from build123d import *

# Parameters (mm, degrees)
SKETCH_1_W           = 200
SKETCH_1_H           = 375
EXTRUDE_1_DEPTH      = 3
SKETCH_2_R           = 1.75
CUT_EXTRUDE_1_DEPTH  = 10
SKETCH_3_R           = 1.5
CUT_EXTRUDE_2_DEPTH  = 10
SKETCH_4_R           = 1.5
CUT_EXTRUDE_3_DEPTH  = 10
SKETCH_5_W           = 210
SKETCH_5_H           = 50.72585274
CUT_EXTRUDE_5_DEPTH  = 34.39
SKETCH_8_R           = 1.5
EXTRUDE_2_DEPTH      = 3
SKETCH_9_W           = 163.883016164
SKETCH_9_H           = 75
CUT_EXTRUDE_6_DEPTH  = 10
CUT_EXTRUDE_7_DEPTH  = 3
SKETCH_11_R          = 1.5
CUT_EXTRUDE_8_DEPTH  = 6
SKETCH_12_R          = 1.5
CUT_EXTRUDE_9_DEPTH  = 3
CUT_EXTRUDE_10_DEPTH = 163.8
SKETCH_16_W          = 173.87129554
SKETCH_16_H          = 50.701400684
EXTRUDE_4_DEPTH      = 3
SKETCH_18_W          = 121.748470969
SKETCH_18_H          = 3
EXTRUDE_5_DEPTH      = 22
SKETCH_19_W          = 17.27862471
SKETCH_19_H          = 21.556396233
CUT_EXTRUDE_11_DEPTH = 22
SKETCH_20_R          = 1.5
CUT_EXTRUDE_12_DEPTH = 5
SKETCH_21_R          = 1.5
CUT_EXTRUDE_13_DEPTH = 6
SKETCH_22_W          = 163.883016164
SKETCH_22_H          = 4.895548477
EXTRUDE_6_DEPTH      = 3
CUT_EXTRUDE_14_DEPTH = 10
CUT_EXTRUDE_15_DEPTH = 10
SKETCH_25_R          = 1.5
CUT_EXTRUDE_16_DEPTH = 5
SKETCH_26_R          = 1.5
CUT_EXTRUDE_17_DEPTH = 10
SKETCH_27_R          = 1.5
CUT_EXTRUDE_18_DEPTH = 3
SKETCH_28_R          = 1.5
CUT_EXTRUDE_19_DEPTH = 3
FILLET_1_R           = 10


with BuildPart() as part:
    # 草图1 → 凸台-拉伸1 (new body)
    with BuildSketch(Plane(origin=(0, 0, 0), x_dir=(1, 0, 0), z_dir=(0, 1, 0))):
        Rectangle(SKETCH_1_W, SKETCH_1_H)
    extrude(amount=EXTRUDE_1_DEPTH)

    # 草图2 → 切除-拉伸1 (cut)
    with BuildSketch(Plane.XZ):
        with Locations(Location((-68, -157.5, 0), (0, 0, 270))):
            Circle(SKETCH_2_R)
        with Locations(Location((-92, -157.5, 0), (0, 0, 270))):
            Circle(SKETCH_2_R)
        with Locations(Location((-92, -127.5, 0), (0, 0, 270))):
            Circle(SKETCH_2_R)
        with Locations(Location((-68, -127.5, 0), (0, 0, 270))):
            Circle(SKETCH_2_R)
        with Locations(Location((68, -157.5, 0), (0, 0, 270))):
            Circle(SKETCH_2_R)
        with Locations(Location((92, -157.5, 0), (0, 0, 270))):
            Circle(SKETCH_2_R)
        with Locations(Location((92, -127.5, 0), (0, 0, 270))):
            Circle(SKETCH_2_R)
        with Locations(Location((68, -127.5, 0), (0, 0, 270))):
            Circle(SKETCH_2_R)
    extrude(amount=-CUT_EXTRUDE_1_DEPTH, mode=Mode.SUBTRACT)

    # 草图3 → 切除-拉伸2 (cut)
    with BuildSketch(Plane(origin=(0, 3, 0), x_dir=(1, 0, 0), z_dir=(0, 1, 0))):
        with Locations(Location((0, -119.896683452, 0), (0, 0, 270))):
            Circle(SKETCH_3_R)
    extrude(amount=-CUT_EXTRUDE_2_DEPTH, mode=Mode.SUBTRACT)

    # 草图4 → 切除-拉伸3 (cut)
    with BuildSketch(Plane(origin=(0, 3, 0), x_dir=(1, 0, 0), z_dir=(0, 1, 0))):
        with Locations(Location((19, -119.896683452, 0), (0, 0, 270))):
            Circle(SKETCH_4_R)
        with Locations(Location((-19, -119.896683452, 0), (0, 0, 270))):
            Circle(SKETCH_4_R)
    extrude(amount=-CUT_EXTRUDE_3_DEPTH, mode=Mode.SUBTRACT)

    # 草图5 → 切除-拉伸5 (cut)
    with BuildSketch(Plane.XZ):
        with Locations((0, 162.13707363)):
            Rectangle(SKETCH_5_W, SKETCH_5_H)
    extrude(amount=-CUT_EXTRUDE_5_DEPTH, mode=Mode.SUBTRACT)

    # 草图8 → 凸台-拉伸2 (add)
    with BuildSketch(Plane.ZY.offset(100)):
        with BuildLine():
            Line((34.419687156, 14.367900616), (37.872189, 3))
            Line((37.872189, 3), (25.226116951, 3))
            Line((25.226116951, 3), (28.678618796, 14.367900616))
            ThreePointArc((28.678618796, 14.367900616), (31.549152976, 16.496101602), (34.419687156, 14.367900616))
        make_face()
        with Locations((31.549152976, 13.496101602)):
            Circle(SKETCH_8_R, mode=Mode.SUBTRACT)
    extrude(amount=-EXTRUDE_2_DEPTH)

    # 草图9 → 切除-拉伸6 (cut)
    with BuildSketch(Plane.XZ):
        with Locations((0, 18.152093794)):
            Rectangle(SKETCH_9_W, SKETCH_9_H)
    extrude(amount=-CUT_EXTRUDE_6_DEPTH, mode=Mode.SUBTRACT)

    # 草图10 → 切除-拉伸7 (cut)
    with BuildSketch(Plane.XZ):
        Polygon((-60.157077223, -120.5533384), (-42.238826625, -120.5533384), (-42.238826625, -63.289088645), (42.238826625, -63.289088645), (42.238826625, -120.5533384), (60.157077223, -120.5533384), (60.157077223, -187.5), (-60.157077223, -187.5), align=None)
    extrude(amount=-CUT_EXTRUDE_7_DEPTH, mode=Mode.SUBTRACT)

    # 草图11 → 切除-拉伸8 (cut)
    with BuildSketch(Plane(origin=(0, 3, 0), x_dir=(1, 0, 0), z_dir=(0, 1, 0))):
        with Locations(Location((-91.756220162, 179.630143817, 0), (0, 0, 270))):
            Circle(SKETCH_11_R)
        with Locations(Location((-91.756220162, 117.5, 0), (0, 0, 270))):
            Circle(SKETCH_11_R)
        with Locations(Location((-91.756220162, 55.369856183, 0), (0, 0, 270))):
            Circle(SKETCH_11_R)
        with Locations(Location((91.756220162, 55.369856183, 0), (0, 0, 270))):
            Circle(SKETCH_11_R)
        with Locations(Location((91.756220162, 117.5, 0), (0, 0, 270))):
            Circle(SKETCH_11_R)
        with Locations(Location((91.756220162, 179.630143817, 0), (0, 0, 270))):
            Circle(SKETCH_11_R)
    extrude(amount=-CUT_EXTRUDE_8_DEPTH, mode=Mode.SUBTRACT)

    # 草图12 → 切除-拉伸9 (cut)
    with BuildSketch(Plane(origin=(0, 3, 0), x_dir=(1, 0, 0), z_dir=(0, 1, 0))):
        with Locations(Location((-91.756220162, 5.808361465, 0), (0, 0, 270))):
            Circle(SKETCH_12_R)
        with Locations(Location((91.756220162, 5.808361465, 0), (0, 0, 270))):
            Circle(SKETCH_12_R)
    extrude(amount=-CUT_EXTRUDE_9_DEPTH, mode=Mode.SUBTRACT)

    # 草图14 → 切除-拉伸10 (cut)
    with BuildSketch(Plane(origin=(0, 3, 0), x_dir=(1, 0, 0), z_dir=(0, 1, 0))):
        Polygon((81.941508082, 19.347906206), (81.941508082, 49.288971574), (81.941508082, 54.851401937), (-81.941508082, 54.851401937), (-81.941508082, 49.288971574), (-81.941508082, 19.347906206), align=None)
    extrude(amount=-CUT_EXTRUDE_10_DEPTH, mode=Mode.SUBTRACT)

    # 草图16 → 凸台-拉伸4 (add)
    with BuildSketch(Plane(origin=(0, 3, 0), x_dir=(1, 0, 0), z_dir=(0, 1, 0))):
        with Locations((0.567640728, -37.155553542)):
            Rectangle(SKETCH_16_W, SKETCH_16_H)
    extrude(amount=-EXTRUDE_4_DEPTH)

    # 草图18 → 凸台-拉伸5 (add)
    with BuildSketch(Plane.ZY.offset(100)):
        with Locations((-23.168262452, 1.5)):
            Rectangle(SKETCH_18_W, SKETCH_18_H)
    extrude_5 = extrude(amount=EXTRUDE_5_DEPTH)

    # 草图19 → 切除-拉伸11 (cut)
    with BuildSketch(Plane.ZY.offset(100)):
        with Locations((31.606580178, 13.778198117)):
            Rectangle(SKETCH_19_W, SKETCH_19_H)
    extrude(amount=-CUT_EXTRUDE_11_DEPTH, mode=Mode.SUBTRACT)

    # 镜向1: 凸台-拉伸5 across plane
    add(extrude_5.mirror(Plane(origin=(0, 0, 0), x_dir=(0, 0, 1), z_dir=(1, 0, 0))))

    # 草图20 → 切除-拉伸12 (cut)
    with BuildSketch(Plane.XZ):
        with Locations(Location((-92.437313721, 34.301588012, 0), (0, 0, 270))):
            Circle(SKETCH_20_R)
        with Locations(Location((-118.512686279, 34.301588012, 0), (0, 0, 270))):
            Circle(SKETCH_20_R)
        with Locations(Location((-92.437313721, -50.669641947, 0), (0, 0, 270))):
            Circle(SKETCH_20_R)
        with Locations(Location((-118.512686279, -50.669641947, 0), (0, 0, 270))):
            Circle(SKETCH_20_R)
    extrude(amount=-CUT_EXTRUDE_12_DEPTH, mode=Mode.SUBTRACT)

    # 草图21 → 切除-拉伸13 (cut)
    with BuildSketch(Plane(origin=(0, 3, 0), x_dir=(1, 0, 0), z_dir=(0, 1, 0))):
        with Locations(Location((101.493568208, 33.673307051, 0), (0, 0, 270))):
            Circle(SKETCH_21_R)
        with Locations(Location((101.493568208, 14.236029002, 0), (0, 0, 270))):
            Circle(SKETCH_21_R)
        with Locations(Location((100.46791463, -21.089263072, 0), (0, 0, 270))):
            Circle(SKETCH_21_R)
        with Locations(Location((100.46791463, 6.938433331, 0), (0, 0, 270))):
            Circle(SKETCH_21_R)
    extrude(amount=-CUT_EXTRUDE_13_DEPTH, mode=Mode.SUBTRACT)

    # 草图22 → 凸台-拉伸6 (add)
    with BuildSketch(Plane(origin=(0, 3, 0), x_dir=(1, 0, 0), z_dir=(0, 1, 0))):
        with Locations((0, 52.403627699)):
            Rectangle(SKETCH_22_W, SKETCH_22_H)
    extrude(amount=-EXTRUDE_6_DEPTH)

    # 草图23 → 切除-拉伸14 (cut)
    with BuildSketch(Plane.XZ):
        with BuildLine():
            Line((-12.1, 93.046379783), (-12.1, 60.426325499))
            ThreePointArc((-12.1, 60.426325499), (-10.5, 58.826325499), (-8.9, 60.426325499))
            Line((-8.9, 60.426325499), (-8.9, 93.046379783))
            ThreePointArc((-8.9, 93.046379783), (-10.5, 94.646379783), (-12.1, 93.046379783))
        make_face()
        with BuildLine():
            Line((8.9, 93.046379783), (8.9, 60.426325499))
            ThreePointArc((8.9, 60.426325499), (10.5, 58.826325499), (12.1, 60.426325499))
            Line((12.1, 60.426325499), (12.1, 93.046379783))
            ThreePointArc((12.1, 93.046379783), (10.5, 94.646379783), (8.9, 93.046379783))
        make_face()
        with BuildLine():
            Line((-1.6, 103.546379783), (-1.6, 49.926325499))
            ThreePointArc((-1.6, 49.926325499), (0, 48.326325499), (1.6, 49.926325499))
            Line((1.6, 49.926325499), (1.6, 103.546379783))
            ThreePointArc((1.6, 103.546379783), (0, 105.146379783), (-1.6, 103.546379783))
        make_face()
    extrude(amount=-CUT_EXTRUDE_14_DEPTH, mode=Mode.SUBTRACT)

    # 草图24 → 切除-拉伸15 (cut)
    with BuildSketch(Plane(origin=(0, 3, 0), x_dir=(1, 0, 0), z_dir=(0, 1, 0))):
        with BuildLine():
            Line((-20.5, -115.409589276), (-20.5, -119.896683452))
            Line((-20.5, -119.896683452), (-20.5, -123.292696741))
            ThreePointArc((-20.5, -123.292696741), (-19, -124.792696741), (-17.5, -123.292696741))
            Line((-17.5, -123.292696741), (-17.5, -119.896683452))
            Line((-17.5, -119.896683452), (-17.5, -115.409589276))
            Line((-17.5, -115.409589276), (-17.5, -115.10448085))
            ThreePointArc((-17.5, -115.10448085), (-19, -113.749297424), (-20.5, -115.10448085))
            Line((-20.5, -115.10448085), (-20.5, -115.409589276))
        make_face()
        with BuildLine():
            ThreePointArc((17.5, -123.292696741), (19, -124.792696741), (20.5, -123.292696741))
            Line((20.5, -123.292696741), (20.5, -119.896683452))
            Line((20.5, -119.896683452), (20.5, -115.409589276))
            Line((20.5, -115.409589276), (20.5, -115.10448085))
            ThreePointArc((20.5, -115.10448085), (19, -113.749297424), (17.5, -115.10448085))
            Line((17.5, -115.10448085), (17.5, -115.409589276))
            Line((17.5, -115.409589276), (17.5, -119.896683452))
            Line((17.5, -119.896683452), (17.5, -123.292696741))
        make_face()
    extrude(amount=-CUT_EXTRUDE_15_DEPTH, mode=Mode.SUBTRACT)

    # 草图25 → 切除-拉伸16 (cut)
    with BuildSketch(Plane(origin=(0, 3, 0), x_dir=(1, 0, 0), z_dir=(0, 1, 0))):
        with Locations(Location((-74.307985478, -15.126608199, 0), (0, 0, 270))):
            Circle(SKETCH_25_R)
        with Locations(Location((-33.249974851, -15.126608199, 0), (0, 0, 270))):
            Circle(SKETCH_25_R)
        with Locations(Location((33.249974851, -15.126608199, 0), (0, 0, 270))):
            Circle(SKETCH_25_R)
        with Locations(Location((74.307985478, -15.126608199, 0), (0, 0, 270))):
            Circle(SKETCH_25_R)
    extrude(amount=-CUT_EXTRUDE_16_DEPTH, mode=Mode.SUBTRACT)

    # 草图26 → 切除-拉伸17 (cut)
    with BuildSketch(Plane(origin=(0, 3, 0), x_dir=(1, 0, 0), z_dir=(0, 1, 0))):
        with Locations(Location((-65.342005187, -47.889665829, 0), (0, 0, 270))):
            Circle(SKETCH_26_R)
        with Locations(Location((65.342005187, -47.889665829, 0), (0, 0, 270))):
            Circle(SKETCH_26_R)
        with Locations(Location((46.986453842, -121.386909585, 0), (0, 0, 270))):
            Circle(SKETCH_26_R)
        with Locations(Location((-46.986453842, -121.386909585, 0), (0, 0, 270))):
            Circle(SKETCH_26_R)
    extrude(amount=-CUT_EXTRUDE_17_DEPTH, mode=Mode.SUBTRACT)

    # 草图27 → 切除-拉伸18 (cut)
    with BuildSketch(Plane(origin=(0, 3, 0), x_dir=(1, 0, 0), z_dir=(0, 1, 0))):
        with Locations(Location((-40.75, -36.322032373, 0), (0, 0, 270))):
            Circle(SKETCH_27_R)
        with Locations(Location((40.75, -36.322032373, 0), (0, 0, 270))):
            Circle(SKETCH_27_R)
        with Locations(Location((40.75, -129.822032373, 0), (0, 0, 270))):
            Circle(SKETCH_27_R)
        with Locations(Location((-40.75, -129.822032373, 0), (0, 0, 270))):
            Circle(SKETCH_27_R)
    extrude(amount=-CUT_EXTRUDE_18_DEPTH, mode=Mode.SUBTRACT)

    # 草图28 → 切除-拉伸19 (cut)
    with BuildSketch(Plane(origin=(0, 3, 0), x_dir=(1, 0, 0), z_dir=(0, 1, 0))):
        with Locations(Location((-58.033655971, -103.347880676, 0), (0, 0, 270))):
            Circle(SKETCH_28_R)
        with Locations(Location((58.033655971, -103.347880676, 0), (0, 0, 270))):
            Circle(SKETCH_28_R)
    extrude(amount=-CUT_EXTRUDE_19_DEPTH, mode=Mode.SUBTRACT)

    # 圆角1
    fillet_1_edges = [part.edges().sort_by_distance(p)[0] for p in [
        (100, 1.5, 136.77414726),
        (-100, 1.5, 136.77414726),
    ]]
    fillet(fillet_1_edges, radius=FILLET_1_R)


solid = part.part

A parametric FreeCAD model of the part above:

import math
import FreeCAD as App
import Part
import Sketcher

V = App.Vector
Q = App.Units.Quantity


def edges_at(feature, points):
    """Names of the edges that pass closest to the given points."""
    edges = feature.Shape.Edges
    near = lambda p: min(range(len(edges)), key=lambda i: edges[i].distToShape(Part.Vertex(*p))[0])
    return sorted({f"Edge{near(p) + 1}" for p in points})


def add_polygon(sketch, points):
    """Adds a closed chain of lines whose ends are joined by coincident constraints."""
    first, n = sketch.GeometryCount, len(points)
    for a, b in zip(points, points[1:] + points[:1]):
        sketch.addGeometry(Part.LineSegment(App.Vector(*a, 0), App.Vector(*b, 0)), False)
    for i in range(n):
        sketch.addConstraint(Sketcher.Constraint("Coincident", first + i, 2, first + (i + 1) % n, 1))

doc = App.newDocument("Part")
body = doc.addObject("PartDesign::Body", "Body")

# Sketch on XZ plane
sketch1 = body.newObject("Sketcher::SketchObject", "Sketch")
sketch1.AttachmentSupport = (doc.getObject("XZ_Plane"), [""])
sketch1.MapMode = "FlatFace"
add_polygon(sketch1, [(-100, -188), (-100, 188), (100, 188), (100, -188)])  # lines 0-3
sketch1.addConstraint(Sketcher.Constraint("Vertical", 0))
sketch1.addConstraint(Sketcher.Constraint("Horizontal", 1))
sketch1.addConstraint(Sketcher.Constraint("Vertical", 2))
sketch1.addConstraint(Sketcher.Constraint("Horizontal", 3))
sketch1.addConstraint(Sketcher.Constraint("Symmetric", 0, 2, 2, 2, -1, 1))
sketch1.addConstraint(Sketcher.Constraint("DistanceX", 1, 1, 1, 2, Q("200 mm")))
sketch1.addConstraint(Sketcher.Constraint("DistanceY", 0, 1, 0, 2, Q("375 mm")))
pad1 = body.newObject("PartDesign::Pad", "Pad")
pad1.Profile = sketch1
pad1.Length = 3
pad1.Reversed = True

# Sketch on XZ plane
sketch2 = body.newObject("Sketcher::SketchObject", "Sketch001")
sketch2.AttachmentSupport = (doc.getObject("XZ_Plane"), [""])
sketch2.MapMode = "FlatFace"
sketch2.addGeometry(Part.Circle(V(-68, -157.5, 0), V(0, 0, 1), 1.8), False)
sketch2.addGeometry(Part.Circle(V(-92, -157.5, 0), V(0, 0, 1), 1.8), False)
sketch2.addGeometry(Part.Circle(V(-92, -127.5, 0), V(0, 0, 1), 1.8), False)
sketch2.addGeometry(Part.Circle(V(-68, -127.5, 0), V(0, 0, 1), 1.8), False)
sketch2.addGeometry(Part.Circle(V(68, -157.5, 0), V(0, 0, 1), 1.8), False)
sketch2.addGeometry(Part.Circle(V(92, -157.5, 0), V(0, 0, 1), 1.8), False)
sketch2.addGeometry(Part.Circle(V(92, -127.5, 0), V(0, 0, 1), 1.8), False)
sketch2.addGeometry(Part.Circle(V(68, -127.5, 0), V(0, 0, 1), 1.8), False)
sketch2.addConstraint(Sketcher.Constraint("Equal", 0, 1))
sketch2.addConstraint(Sketcher.Constraint("Equal", 1, 2))
sketch2.addConstraint(Sketcher.Constraint("Equal", 2, 3))
sketch2.addConstraint(Sketcher.Constraint("Equal", 3, 4))
sketch2.addConstraint(Sketcher.Constraint("Equal", 4, 5))
sketch2.addConstraint(Sketcher.Constraint("Equal", 5, 6))
sketch2.addConstraint(Sketcher.Constraint("Equal", 6, 7))
sketch2.addConstraint(Sketcher.Constraint("Symmetric", 0, 3, 4, 3, -2))
sketch2.addConstraint(Sketcher.Constraint("Symmetric", 1, 3, 5, 3, -2))
sketch2.addConstraint(Sketcher.Constraint("Symmetric", 2, 3, 6, 3, -2))
sketch2.addConstraint(Sketcher.Constraint("Symmetric", 3, 3, 7, 3, -2))
sketch2.addConstraint(Sketcher.Constraint("Horizontal", 0, 3, 1, 3))
sketch2.addConstraint(Sketcher.Constraint("Horizontal", 2, 3, 3, 3))
sketch2.addConstraint(Sketcher.Constraint("Vertical", 1, 3, 2, 3))
sketch2.addConstraint(Sketcher.Constraint("Vertical", 0, 3, 3, 3))
sketch2.addConstraint(Sketcher.Constraint("Diameter", 0, Q("3.5 mm")))
sketch2.addConstraint(Sketcher.Constraint("DistanceX", 0, 3, -1, 1, Q("68 mm")))
sketch2.addConstraint(Sketcher.Constraint("DistanceX", 1, 3, -1, 1, Q("92 mm")))
sketch2.addConstraint(Sketcher.Constraint("DistanceY", 1, 3, 2, 3, Q("30 mm")))
sketch2.addConstraint(Sketcher.Constraint("DistanceY", 0, 3, -1, 1, Q("157.5 mm")))
pocket1 = body.newObject("PartDesign::Pocket", "Pocket")
pocket1.Profile = sketch2
pocket1.Length = 10

# Sketch on XZ plane
sketch3 = body.newObject("Sketcher::SketchObject", "Sketch002")
sketch3.AttachmentSupport = (doc.getObject("XZ_Plane"), [""])
sketch3.MapMode = "FlatFace"
sketch3.AttachmentOffset = App.Placement(V(0, 0, -3), App.Rotation())
sketch3.addGeometry(Part.Circle(V(0, 119.9, 0), V(0, 0, 1), 1.5), False)
sketch3.addConstraint(Sketcher.Constraint("PointOnObject", 0, 3, -2))
sketch3.addConstraint(Sketcher.Constraint("Diameter", 0, Q("3 mm")))
sketch3.addConstraint(Sketcher.Constraint("DistanceY", -1, 1, 0, 3, Q("119.896683 mm")))
pocket2 = body.newObject("PartDesign::Pocket", "Pocket001")
pocket2.Profile = sketch3
pocket2.Length = 10
pocket2.Reversed = True

# Sketch on XZ plane
sketch4 = body.newObject("Sketcher::SketchObject", "Sketch003")
sketch4.AttachmentSupport = (doc.getObject("XZ_Plane"), [""])
sketch4.MapMode = "FlatFace"
sketch4.AttachmentOffset = App.Placement(V(0, 0, -3), App.Rotation())
sketch4.addGeometry(Part.Circle(V(19, 119.9, 0), V(0, 0, 1), 1.5), False)
sketch4.addGeometry(Part.Circle(V(-19, 119.9, 0), V(0, 0, 1), 1.5), False)
sketch4.addConstraint(Sketcher.Constraint("Equal", 0, 1))
sketch4.addConstraint(Sketcher.Constraint("Symmetric", 0, 3, 1, 3, -2))
sketch4.addConstraint(Sketcher.Constraint("Diameter", 0, Q("3 mm")))
sketch4.addConstraint(Sketcher.Constraint("DistanceX", -1, 1, 0, 3, Q("19 mm")))
sketch4.addConstraint(Sketcher.Constraint("DistanceY", -1, 1, 0, 3, Q("119.896683 mm")))
pocket3 = body.newObject("PartDesign::Pocket", "Pocket002")
pocket3.Profile = sketch4
pocket3.Length = 10
pocket3.Reversed = True

# Sketch on XZ plane
sketch5 = body.newObject("Sketcher::SketchObject", "Sketch004")
sketch5.AttachmentSupport = (doc.getObject("XZ_Plane"), [""])
sketch5.MapMode = "FlatFace"
add_polygon(sketch5, [(-105, 188), (-105, 137), (105, 137), (105, 188)])  # lines 0-3
sketch5.addConstraint(Sketcher.Constraint("Vertical", 0))
sketch5.addConstraint(Sketcher.Constraint("Horizontal", 1))
sketch5.addConstraint(Sketcher.Constraint("Vertical", 2))
sketch5.addConstraint(Sketcher.Constraint("Horizontal", 3))
sketch5.addConstraint(Sketcher.Constraint("DistanceX", 1, 1, 1, 2, Q("210 mm")))
sketch5.addConstraint(Sketcher.Constraint("DistanceX", 0, 2, -1, 1, Q("105 mm")))
sketch5.addConstraint(Sketcher.Constraint("DistanceY", -1, 1, 2, 2, Q("187.5 mm")))
sketch5.addConstraint(Sketcher.Constraint("DistanceY", 0, 2, 0, 1, Q("50.725853 mm")))
pocket4 = body.newObject("PartDesign::Pocket", "Pocket003")
pocket4.Profile = sketch5
pocket4.Length = 34.39

# Sketch on YZ plane
sketch6 = body.newObject("Sketcher::SketchObject", "Sketch005")
sketch6.AttachmentSupport = (doc.getObject("YZ_Plane"), [""])
sketch6.MapMode = "FlatFace"
sketch6.AttachmentOffset = App.Placement(V(0, 0, -100), App.Rotation())
sketch6.addGeometry(Part.LineSegment(V(3, 37.9, 0), V(14.4, 34.4, 0)), False)
sketch6.addGeometry(Part.ArcOfCircle(Part.Circle(V(13.5, 31.5, 0), V(0, 0, 1), 3), math.radians(-73), math.radians(73)), False)
sketch6.addGeometry(Part.LineSegment(V(14.4, 28.7, 0), V(3, 25.2, 0)), False)
sketch6.addGeometry(Part.LineSegment(V(3, 25.2, 0), V(3, 37.9, 0)), False)
sketch6.addGeometry(Part.Circle(V(13.5, 31.5, 0), V(0, 0, 1), 1.5), False)
sketch6.addConstraint(Sketcher.Constraint("Tangent", 0, 2, 1, 2))
sketch6.addConstraint(Sketcher.Constraint("Tangent", 1, 1, 2, 1))
sketch6.addConstraint(Sketcher.Constraint("Coincident", 2, 2, 3, 1))
sketch6.addConstraint(Sketcher.Constraint("Coincident", 3, 2, 0, 1))
sketch6.addConstraint(Sketcher.Constraint("Vertical", 3))
sketch6.addConstraint(Sketcher.Constraint("Coincident", 4, 3, 1, 3))
sketch6.addConstraint(Sketcher.Constraint("Vertical", 0, 2, 1, 1))
sketch6.addConstraint(Sketcher.Constraint("Diameter", 4, Q("3 mm")))
sketch6.addConstraint(Sketcher.Constraint("Radius", 1, Q("3 mm")))
sketch6.addConstraint(Sketcher.Constraint("DistanceX", -1, 1, 2, 2, Q("3 mm")))
sketch6.addConstraint(Sketcher.Constraint("DistanceX", -1, 1, 1, 3, Q("13.496102 mm")))
sketch6.addConstraint(Sketcher.Constraint("DistanceX", -1, 1, 0, 2, Q("14.367901 mm")))
sketch6.addConstraint(Sketcher.Constraint("DistanceY", -1, 1, 1, 1, Q("28.678619 mm")))
pad2 = body.newObject("PartDesign::Pad", "Pad001")
pad2.Profile = sketch6
pad2.Length = 3

# Sketch on XZ plane
sketch7 = body.newObject("Sketcher::SketchObject", "Sketch006")
sketch7.AttachmentSupport = (doc.getObject("XZ_Plane"), [""])
sketch7.MapMode = "FlatFace"
add_polygon(sketch7, [(-82, 56), (-82, -19), (82, -19), (82, 56)])  # lines 0-3
sketch7.addConstraint(Sketcher.Constraint("Vertical", 0))
sketch7.addConstraint(Sketcher.Constraint("Horizontal", 1))
sketch7.addConstraint(Sketcher.Constraint("Vertical", 2))
sketch7.addConstraint(Sketcher.Constraint("Horizontal", 3))
sketch7.addConstraint(Sketcher.Constraint("DistanceY", 0, 2, 0, 1, Q("75 mm")))
sketch7.addConstraint(Sketcher.Constraint("DistanceX", 1, 1, 1, 2, Q("163.883016 mm")))
sketch7.addConstraint(Sketcher.Constraint("DistanceX", 0, 2, -1, 1, Q("81.941508 mm")))
sketch7.addConstraint(Sketcher.Constraint("DistanceY", 0, 2, -1, 1, Q("19.347906 mm")))
pocket5 = body.newObject("PartDesign::Pocket", "Pocket004")
pocket5.Profile = sketch7
pocket5.Length = 10

# Sketch on XZ plane
sketch8 = body.newObject("Sketcher::SketchObject", "Sketch007")
sketch8.AttachmentSupport = (doc.getObject("XZ_Plane"), [""])
sketch8.MapMode = "FlatFace"
add_polygon(sketch8, [(-42, -121), (-60, -121), (-60, -188), (60, -188), (60, -121), (42, -121), (42, -63), (-42, -63)])  # lines 0-7
sketch8.addConstraint(Sketcher.Constraint("Horizontal", 0))
sketch8.addConstraint(Sketcher.Constraint("Vertical", 1))
sketch8.addConstraint(Sketcher.Constraint("Horizontal", 2))
sketch8.addConstraint(Sketcher.Constraint("Vertical", 3))
sketch8.addConstraint(Sketcher.Constraint("Horizontal", 4))
sketch8.addConstraint(Sketcher.Constraint("Vertical", 5))
sketch8.addConstraint(Sketcher.Constraint("Horizontal", 6))
sketch8.addConstraint(Sketcher.Constraint("Vertical", 7))
sketch8.addConstraint(Sketcher.Constraint("Symmetric", 0, 2, 3, 2, -2))
sketch8.addConstraint(Sketcher.Constraint("Equal", 0, 4))
sketch8.addConstraint(Sketcher.Constraint("DistanceY", 1, 2, -1, 1, Q("187.5 mm")))
sketch8.addConstraint(Sketcher.Constraint("DistanceX", 0, 2, 0, 1, Q("17.918251 mm")))
sketch8.addConstraint(Sketcher.Constraint("DistanceY", 1, 2, 1, 1, Q("66.946662 mm")))
sketch8.addConstraint(Sketcher.Constraint("DistanceY", 5, 1, 5, 2, Q("57.26425 mm")))
sketch8.addConstraint(Sketcher.Constraint("DistanceX", 2, 1, 2, 2, Q("120.314154 mm")))
pocket6 = body.newObject("PartDesign::Pocket", "Pocket005")
pocket6.Profile = sketch8
pocket6.Length = 3

# Sketch on XZ plane
sketch9 = body.newObject("Sketcher::SketchObject", "Sketch008")
sketch9.AttachmentSupport = (doc.getObject("XZ_Plane"), [""])
sketch9.MapMode = "FlatFace"
sketch9.AttachmentOffset = App.Placement(V(0, 0, -3), App.Rotation())
sketch9.addGeometry(Part.Circle(V(-91.8, -179.6, 0), V(0, 0, 1), 1.5), False)
sketch9.addGeometry(Part.Circle(V(-91.8, -117.5, 0), V(0, 0, 1), 1.5), False)
sketch9.addGeometry(Part.Circle(V(-91.8, -55.4, 0), V(0, 0, 1), 1.5), False)
sketch9.addGeometry(Part.Circle(V(91.8, -55.4, 0), V(0, 0, 1), 1.5), False)
sketch9.addGeometry(Part.Circle(V(91.8, -117.5, 0), V(0, 0, 1), 1.5), False)
sketch9.addGeometry(Part.Circle(V(91.8, -179.6, 0), V(0, 0, 1), 1.5), False)
sketch9.addConstraint(Sketcher.Constraint("Equal", 0, 1))
sketch9.addConstraint(Sketcher.Constraint("Equal", 1, 2))
sketch9.addConstraint(Sketcher.Constraint("Equal", 2, 3))
sketch9.addConstraint(Sketcher.Constraint("Equal", 3, 4))
sketch9.addConstraint(Sketcher.Constraint("Equal", 4, 5))
sketch9.addConstraint(Sketcher.Constraint("Symmetric", 2, 3, 3, 3, -2))
sketch9.addConstraint(Sketcher.Constraint("Symmetric", 1, 3, 4, 3, -2))
sketch9.addConstraint(Sketcher.Constraint("Symmetric", 0, 3, 5, 3, -2))
sketch9.addConstraint(Sketcher.Constraint("Vertical", 0, 3, 1, 3))
sketch9.addConstraint(Sketcher.Constraint("Vertical", 1, 3, 2, 3))
sketch9.addConstraint(Sketcher.Constraint("Diameter", 0, Q("3 mm")))
sketch9.addConstraint(Sketcher.Constraint("DistanceY", 1, 3, -1, 1, Q("117.5 mm")))
sketch9.addConstraint(Sketcher.Constraint("DistanceX", 0, 3, -1, 1, Q("91.75622 mm")))
sketch9.addConstraint(Sketcher.Constraint("DistanceY", 0, 3, -1, 1, Q("179.630144 mm")))
sketch9.addConstraint(Sketcher.Constraint("DistanceY", 2, 3, -1, 1, Q("55.369856 mm")))
pocket7 = body.newObject("PartDesign::Pocket", "Pocket006")
pocket7.Profile = sketch9
pocket7.Length = 6
pocket7.Reversed = True

# Sketch on XZ plane
sketch10 = body.newObject("Sketcher::SketchObject", "Sketch009")
sketch10.AttachmentSupport = (doc.getObject("XZ_Plane"), [""])
sketch10.MapMode = "FlatFace"
sketch10.AttachmentOffset = App.Placement(V(0, 0, -3), App.Rotation())
sketch10.addGeometry(Part.Circle(V(-91.8, -5.8, 0), V(0, 0, 1), 1.5), False)
sketch10.addGeometry(Part.Circle(V(91.8, -5.8, 0), V(0, 0, 1), 1.5), False)
sketch10.addConstraint(Sketcher.Constraint("Equal", 0, 1))
sketch10.addConstraint(Sketcher.Constraint("Symmetric", 0, 3, 1, 3, -2))
sketch10.addConstraint(Sketcher.Constraint("Diameter", 0, Q("3 mm")))
sketch10.addConstraint(Sketcher.Constraint("DistanceX", 0, 3, -1, 1, Q("91.75622 mm")))
sketch10.addConstraint(Sketcher.Constraint("DistanceY", 0, 3, -1, 1, Q("5.808361 mm")))
pocket8 = body.newObject("PartDesign::Pocket", "Pocket007")
pocket8.Profile = sketch10
pocket8.Length = 3
pocket8.Reversed = True

# Sketch on XZ plane
sketch11 = body.newObject("Sketcher::SketchObject", "Sketch010")
sketch11.AttachmentSupport = (doc.getObject("XZ_Plane"), [""])
sketch11.MapMode = "FlatFace"
sketch11.AttachmentOffset = App.Placement(V(0, 0, -3), App.Rotation())
add_polygon(sketch11, [(82, -19), (82, -55), (-82, -55), (-82, -19)])  # lines 0-3
sketch11.addConstraint(Sketcher.Constraint("Vertical", 0))
sketch11.addConstraint(Sketcher.Constraint("Horizontal", 1))
sketch11.addConstraint(Sketcher.Constraint("Vertical", 2))
sketch11.addConstraint(Sketcher.Constraint("Horizontal", 3))
sketch11.addConstraint(Sketcher.Constraint("DistanceY", 0, 2, -1, 1, Q("54.851402 mm")))
sketch11.addConstraint(Sketcher.Constraint("DistanceX", 1, 2, 1, 1, Q("163.883016 mm")))
sketch11.addConstraint(Sketcher.Constraint("DistanceY", 0, 2, 0, 1, Q("35.503496 mm")))
sketch11.addConstraint(Sketcher.Constraint("DistanceX", -1, 1, 0, 2, Q("81.941508 mm")))
pocket9 = body.newObject("PartDesign::Pocket", "Pocket008")
pocket9.Profile = sketch11
pocket9.Length = 163.8
pocket9.Reversed = True

# Sketch on XZ plane
sketch12 = body.newObject("Sketcher::SketchObject", "Sketch011")
sketch12.AttachmentSupport = (doc.getObject("XZ_Plane"), [""])
sketch12.MapMode = "FlatFace"
sketch12.AttachmentOffset = App.Placement(V(0, 0, -3), App.Rotation())
add_polygon(sketch12, [(-86, 12), (-86, 63), (88, 63), (88, 12)])  # lines 0-3
sketch12.addConstraint(Sketcher.Constraint("Vertical", 0))
sketch12.addConstraint(Sketcher.Constraint("Horizontal", 1))
sketch12.addConstraint(Sketcher.Constraint("Vertical", 2))
sketch12.addConstraint(Sketcher.Constraint("Horizontal", 3))
sketch12.addConstraint(Sketcher.Constraint("DistanceY", 0, 1, 0, 2, Q("50.701401 mm")))
sketch12.addConstraint(Sketcher.Constraint("DistanceX", 1, 1, 1, 2, Q("173.871296 mm")))
sketch12.addConstraint(Sketcher.Constraint("DistanceX", -1, 1, 1, 2, Q("87.503288 mm")))
sketch12.addConstraint(Sketcher.Constraint("DistanceY", -1, 1, 0, 2, Q("62.506254 mm")))
pad3 = body.newObject("PartDesign::Pad", "Pad002")
pad3.Profile = sketch12
pad3.Length = 3

# Sketch on YZ plane
sketch13 = body.newObject("Sketcher::SketchObject", "Sketch012")
sketch13.AttachmentSupport = (doc.getObject("YZ_Plane"), [""])
sketch13.MapMode = "FlatFace"
sketch13.AttachmentOffset = App.Placement(V(0, 0, -100), App.Rotation())
add_polygon(sketch13, [(3, -84), (0, -84), (0, 37.7), (3, 37.7)])  # lines 0-3
sketch13.addConstraint(Sketcher.Constraint("Horizontal", 0))
sketch13.addConstraint(Sketcher.Constraint("Vertical", 1))
sketch13.addConstraint(Sketcher.Constraint("Horizontal", 2))
sketch13.addConstraint(Sketcher.Constraint("Vertical", 3))
sketch13.addConstraint(Sketcher.Constraint("PointOnObject", 0, 2, -2))
sketch13.addConstraint(Sketcher.Constraint("DistanceX", 0, 2, 0, 1, Q("3 mm")))
sketch13.addConstraint(Sketcher.Constraint("DistanceY", 1, 1, 1, 2, Q("121.748471 mm")))
sketch13.addConstraint(Sketcher.Constraint("DistanceY", 0, 2, -1, 1, Q("84.042498 mm")))
pad4 = body.newObject("PartDesign::Pad", "Pad003")
pad4.Profile = sketch13
pad4.Length = 22
pad4.Reversed = True

# Sketch on YZ plane
sketch14 = body.newObject("Sketcher::SketchObject", "Sketch013")
sketch14.AttachmentSupport = (doc.getObject("YZ_Plane"), [""])
sketch14.MapMode = "FlatFace"
sketch14.AttachmentOffset = App.Placement(V(0, 0, -100), App.Rotation())
add_polygon(sketch14, [(25, 23), (3, 23), (3, 40), (25, 40)])  # lines 0-3
sketch14.addConstraint(Sketcher.Constraint("Horizontal", 0))
sketch14.addConstraint(Sketcher.Constraint("Vertical", 1))
sketch14.addConstraint(Sketcher.Constraint("Horizontal", 2))
sketch14.addConstraint(Sketcher.Constraint("Vertical", 3))
sketch14.addConstraint(Sketcher.Constraint("DistanceX", -1, 1, 0, 2, Q("3 mm")))
sketch14.addConstraint(Sketcher.Constraint("DistanceX", 0, 2, 0, 1, Q("21.556396 mm")))
sketch14.addConstraint(Sketcher.Constraint("DistanceY", 1, 1, 1, 2, Q("17.278625 mm")))
sketch14.addConstraint(Sketcher.Constraint("DistanceY", -1, 1, 0, 2, Q("22.967268 mm")))
pocket10 = body.newObject("PartDesign::Pocket", "Pocket009")
pocket10.Profile = sketch14
pocket10.Length = 22
pocket10.Reversed = True
doc.recompute()

mirrored = body.newObject("PartDesign::Mirrored", "Mirrored")
mirrored.Originals = [pad4]
mirrored.MirrorPlane = (doc.getObject("YZ_Plane"), [""])
body.Tip = mirrored

# Sketch on XZ plane
sketch15 = body.newObject("Sketcher::SketchObject", "Sketch014")
sketch15.AttachmentSupport = (doc.getObject("XZ_Plane"), [""])
sketch15.MapMode = "FlatFace"
sketch15.addGeometry(Part.Circle(V(-92.4, 34.3, 0), V(0, 0, 1), 1.5), False)
sketch15.addGeometry(Part.Circle(V(-118.5, 34.3, 0), V(0, 0, 1), 1.5), False)
sketch15.addGeometry(Part.Circle(V(-92.4, -50.7, 0), V(0, 0, 1), 1.5), False)
sketch15.addGeometry(Part.Circle(V(-118.5, -50.7, 0), V(0, 0, 1), 1.5), False)
sketch15.addConstraint(Sketcher.Constraint("Equal", 0, 1))
sketch15.addConstraint(Sketcher.Constraint("Equal", 1, 2))
sketch15.addConstraint(Sketcher.Constraint("Equal", 2, 3))
sketch15.addConstraint(Sketcher.Constraint("Horizontal", 0, 3, 1, 3))
sketch15.addConstraint(Sketcher.Constraint("Horizontal", 2, 3, 3, 3))
sketch15.addConstraint(Sketcher.Constraint("Vertical", 0, 3, 2, 3))
sketch15.addConstraint(Sketcher.Constraint("Vertical", 1, 3, 3, 3))
sketch15.addConstraint(Sketcher.Constraint("Diameter", 0, Q("3 mm")))
sketch15.addConstraint(Sketcher.Constraint("DistanceY", -1, 1, 0, 3, Q("34.301588 mm")))
sketch15.addConstraint(Sketcher.Constraint("DistanceY", 2, 3, -1, 1, Q("50.669642 mm")))
sketch15.addConstraint(Sketcher.Constraint("DistanceX", 0, 3, -1, 1, Q("92.437314 mm")))
sketch15.addConstraint(Sketcher.Constraint("DistanceX", 1, 3, -1, 1, Q("118.512686 mm")))
pocket11 = body.newObject("PartDesign::Pocket", "Pocket010")
pocket11.Profile = sketch15
pocket11.Length = 5

# Sketch on XZ plane
sketch16 = body.newObject("Sketcher::SketchObject", "Sketch015")
sketch16.AttachmentSupport = (doc.getObject("XZ_Plane"), [""])
sketch16.MapMode = "FlatFace"
sketch16.AttachmentOffset = App.Placement(V(0, 0, -3), App.Rotation())
sketch16.addGeometry(Part.Circle(V(101.5, -33.7, 0), V(0, 0, 1), 1.5), False)
sketch16.addGeometry(Part.Circle(V(101.5, -14.2, 0), V(0, 0, 1), 1.5), False)
sketch16.addGeometry(Part.Circle(V(100.5, 21.1, 0), V(0, 0, 1), 1.5), False)
sketch16.addGeometry(Part.Circle(V(100.5, -6.9, 0), V(0, 0, 1), 1.5), False)
sketch16.addConstraint(Sketcher.Constraint("Equal", 0, 1))
sketch16.addConstraint(Sketcher.Constraint("Equal", 1, 2))
sketch16.addConstraint(Sketcher.Constraint("Equal", 2, 3))
sketch16.addConstraint(Sketcher.Constraint("Vertical", 0, 3, 1, 3))
sketch16.addConstraint(Sketcher.Constraint("Vertical", 2, 3, 3, 3))
sketch16.addConstraint(Sketcher.Constraint("Diameter", 0, Q("3 mm")))
sketch16.addConstraint(Sketcher.Constraint("DistanceX", -1, 1, 0, 3, Q("101.493568 mm")))
sketch16.addConstraint(Sketcher.Constraint("DistanceY", 1, 3, -1, 1, Q("14.236029 mm")))
sketch16.addConstraint(Sketcher.Constraint("DistanceY", 0, 3, 1, 3, Q("19.437278 mm")))
sketch16.addConstraint(Sketcher.Constraint("DistanceY", 0, 3, 2, 3, Q("54.76257 mm")))
sketch16.addConstraint(Sketcher.Constraint("DistanceX", -1, 1, 2, 3, Q("100.467915 mm")))
sketch16.addConstraint(Sketcher.Constraint("DistanceY", 3, 3, -1, 1, Q("6.938433 mm")))
pocket12 = body.newObject("PartDesign::Pocket", "Pocket011")
pocket12.Profile = sketch16
pocket12.Length = 6
pocket12.Reversed = True

# Sketch on XZ plane
sketch17 = body.newObject("Sketcher::SketchObject", "Sketch016")
sketch17.AttachmentSupport = (doc.getObject("XZ_Plane"), [""])
sketch17.MapMode = "FlatFace"
sketch17.AttachmentOffset = App.Placement(V(0, 0, -3), App.Rotation())
add_polygon(sketch17, [(-81.9, -54.9), (-81.9, -50), (81.9, -50), (81.9, -54.9)])  # lines 0-3
sketch17.addConstraint(Sketcher.Constraint("Vertical", 0))
sketch17.addConstraint(Sketcher.Constraint("Horizontal", 1))
sketch17.addConstraint(Sketcher.Constraint("Vertical", 2))
sketch17.addConstraint(Sketcher.Constraint("Horizontal", 3))
sketch17.addConstraint(Sketcher.Constraint("DistanceY", 0, 1, 0, 2, Q("4.895548 mm")))
sketch17.addConstraint(Sketcher.Constraint("DistanceY", 2, 2, -1, 1, Q("54.851402 mm")))
sketch17.addConstraint(Sketcher.Constraint("DistanceX", 1, 1, 1, 2, Q("163.883016 mm")))
sketch17.addConstraint(Sketcher.Constraint("DistanceX", 0, 2, -1, 1, Q("81.941508 mm")))
pad5 = body.newObject("PartDesign::Pad", "Pad004")
pad5.Profile = sketch17
pad5.Length = 3

# Sketch on XZ plane
sketch18 = body.newObject("Sketcher::SketchObject", "Sketch017")
sketch18.AttachmentSupport = (doc.getObject("XZ_Plane"), [""])
sketch18.MapMode = "FlatFace"
sketch18.addGeometry(Part.LineSegment(V(-12.1, 93, 0), V(-12.1, 60.4, 0)), False)
sketch18.addGeometry(Part.ArcOfCircle(Part.Circle(V(-10.5, 60.4, 0), V(0, 0, 1), 1.6), math.radians(180), math.radians(360)), False)
sketch18.addGeometry(Part.LineSegment(V(-8.9, 60.4, 0), V(-8.9, 93, 0)), False)
sketch18.addGeometry(Part.ArcOfCircle(Part.Circle(V(-10.5, 93, 0), V(0, 0, 1), 1.6), math.radians(0), math.radians(180)), False)
sketch18.addGeometry(Part.LineSegment(V(8.9, 93, 0), V(8.9, 60.4, 0)), False)
sketch18.addGeometry(Part.ArcOfCircle(Part.Circle(V(10.5, 60.4, 0), V(0, 0, 1), 1.6), math.radians(180), math.radians(360)), False)
sketch18.addGeometry(Part.LineSegment(V(12.1, 60.4, 0), V(12.1, 93, 0)), False)
sketch18.addGeometry(Part.ArcOfCircle(Part.Circle(V(10.5, 93, 0), V(0, 0, 1), 1.6), math.radians(0), math.radians(180)), False)
sketch18.addGeometry(Part.LineSegment(V(-1.6, 103.5, 0), V(-1.6, 49.9, 0)), False)
sketch18.addGeometry(Part.ArcOfCircle(Part.Circle(V(0, 49.9, 0), V(0, 0, 1), 1.6), math.radians(180), math.radians(360)), False)
sketch18.addGeometry(Part.LineSegment(V(1.6, 49.9, 0), V(1.6, 103.5, 0)), False)
sketch18.addGeometry(Part.ArcOfCircle(Part.Circle(V(0, 103.5, 0), V(0, 0, 1), 1.6), math.radians(0), math.radians(180)), False)
sketch18.addConstraint(Sketcher.Constraint("Tangent", 0, 2, 1, 1))
sketch18.addConstraint(Sketcher.Constraint("Tangent", 1, 2, 2, 1))
sketch18.addConstraint(Sketcher.Constraint("Tangent", 2, 2, 3, 1))
sketch18.addConstraint(Sketcher.Constraint("Tangent", 3, 2, 0, 1))
sketch18.addConstraint(Sketcher.Constraint("Tangent", 4, 2, 5, 1))
sketch18.addConstraint(Sketcher.Constraint("Tangent", 5, 2, 6, 1))
sketch18.addConstraint(Sketcher.Constraint("Tangent", 6, 2, 7, 1))
sketch18.addConstraint(Sketcher.Constraint("Tangent", 7, 2, 4, 1))
sketch18.addConstraint(Sketcher.Constraint("Tangent", 8, 2, 9, 1))
sketch18.addConstraint(Sketcher.Constraint("Tangent", 9, 2, 10, 1))
sketch18.addConstraint(Sketcher.Constraint("Tangent", 10, 2, 11, 1))
sketch18.addConstraint(Sketcher.Constraint("Tangent", 11, 2, 8, 1))
sketch18.addConstraint(Sketcher.Constraint("Vertical", 0))
sketch18.addConstraint(Sketcher.Constraint("Vertical", 2))
sketch18.addConstraint(Sketcher.Constraint("Vertical", 4))
sketch18.addConstraint(Sketcher.Constraint("Vertical", 6))
sketch18.addConstraint(Sketcher.Constraint("Vertical", 8))
sketch18.addConstraint(Sketcher.Constraint("Vertical", 10))
sketch18.addConstraint(Sketcher.Constraint("Equal", 3, 5))
sketch18.addConstraint(Sketcher.Constraint("Equal", 7, 9))
sketch18.addConstraint(Sketcher.Constraint("Symmetric", 1, 3, 5, 3, -2))
sketch18.addConstraint(Sketcher.Constraint("PointOnObject", 9, 3, -2))
sketch18.addConstraint(Sketcher.Constraint("Horizontal", 3, 3, 7, 3))
sketch18.addConstraint(Sketcher.Constraint("Radius", 1, Q("1.6 mm")))
sketch18.addConstraint(Sketcher.Constraint("DistanceX", 1, 3, 5, 3, Q("21 mm")))
sketch18.addConstraint(Sketcher.Constraint("DistanceY", 9, 3, 1, 3, Q("10.5 mm")))
sketch18.addConstraint(Sketcher.Constraint("DistanceY", 3, 3, 11, 3, Q("10.5 mm")))
sketch18.addConstraint(Sketcher.Constraint("DistanceY", 0, 2, 0, 1, Q("32.620054 mm")))
sketch18.addConstraint(Sketcher.Constraint("DistanceY", -1, 1, 3, 3, Q("93.04638 mm")))
pocket13 = body.newObject("PartDesign::Pocket", "Pocket012")
pocket13.Profile = sketch18
pocket13.Length = 10

# Sketch on XZ plane
sketch19 = body.newObject("Sketcher::SketchObject", "Sketch018")
sketch19.AttachmentSupport = (doc.getObject("XZ_Plane"), [""])
sketch19.MapMode = "FlatFace"
sketch19.AttachmentOffset = App.Placement(V(0, 0, -3), App.Rotation())
sketch19.addGeometry(Part.ArcOfCircle(Part.Circle(V(-19, 123.3, 0), V(0, 0, 1), 1.5), math.radians(0), math.radians(180)), False)
sketch19.addGeometry(Part.LineSegment(V(-17.5, 123.3, 0), V(-17.5, 115.1, 0)), False)
sketch19.addGeometry(Part.ArcOfCircle(Part.Circle(V(-19, 115.3, 0), V(0, 0, 1), 1.5), math.radians(-174), math.radians(-6)), False)
sketch19.addGeometry(Part.LineSegment(V(-20.5, 115.1, 0), V(-20.5, 123.3, 0)), False)
sketch19.addGeometry(Part.ArcOfCircle(Part.Circle(V(19, 123.3, 0), V(0, 0, 1), 1.5), math.radians(0), math.radians(180)), False)
sketch19.addGeometry(Part.LineSegment(V(20.5, 123.3, 0), V(20.5, 115.1, 0)), False)
sketch19.addGeometry(Part.ArcOfCircle(Part.Circle(V(19, 115.3, 0), V(0, 0, 1), 1.5), math.radians(-174), math.radians(-6)), False)
sketch19.addGeometry(Part.LineSegment(V(17.5, 115.1, 0), V(17.5, 123.3, 0)), False)
sketch19.addConstraint(Sketcher.Constraint("Tangent", 0, 1, 1, 1))
sketch19.addConstraint(Sketcher.Constraint("Coincident", 1, 2, 2, 2))
sketch19.addConstraint(Sketcher.Constraint("Coincident", 2, 1, 3, 1))
sketch19.addConstraint(Sketcher.Constraint("Tangent", 3, 2, 0, 2))
sketch19.addConstraint(Sketcher.Constraint("Tangent", 4, 1, 5, 1))
sketch19.addConstraint(Sketcher.Constraint("Coincident", 5, 2, 6, 2))
sketch19.addConstraint(Sketcher.Constraint("Coincident", 6, 1, 7, 1))
sketch19.addConstraint(Sketcher.Constraint("Tangent", 7, 2, 4, 2))
sketch19.addConstraint(Sketcher.Constraint("Vertical", 1))
sketch19.addConstraint(Sketcher.Constraint("Vertical", 3))
sketch19.addConstraint(Sketcher.Constraint("Vertical", 5))
sketch19.addConstraint(Sketcher.Constraint("Vertical", 7))
sketch19.addConstraint(Sketcher.Constraint("Equal", 0, 4))
sketch19.addConstraint(Sketcher.Constraint("Equal", 2, 6))
sketch19.addConstraint(Sketcher.Constraint("Symmetric", 0, 3, 4, 3, -2))
sketch19.addConstraint(Sketcher.Constraint("Symmetric", 2, 3, 6, 3, -2))
sketch19.addConstraint(Sketcher.Constraint("Horizontal", 1, 2, 2, 1))
sketch19.addConstraint(Sketcher.Constraint("Radius", 0, Q("1.5 mm")))
sketch19.addConstraint(Sketcher.Constraint("DistanceX", 0, 3, -1, 1, Q("19 mm")))
sketch19.addConstraint(Sketcher.Constraint("Radius", 2, Q("1.507738 mm")))
sketch19.addConstraint(Sketcher.Constraint("DistanceY", 1, 2, 1, 1, Q("8.188216 mm")))
sketch19.addConstraint(Sketcher.Constraint("DistanceY", -1, 1, 1, 2, Q("115.104481 mm")))
pocket14 = body.newObject("PartDesign::Pocket", "Pocket013")
pocket14.Profile = sketch19
pocket14.Length = 10
pocket14.Reversed = True

# Sketch on XZ plane
sketch20 = body.newObject("Sketcher::SketchObject", "Sketch019")
sketch20.AttachmentSupport = (doc.getObject("XZ_Plane"), [""])
sketch20.MapMode = "FlatFace"
sketch20.AttachmentOffset = App.Placement(V(0, 0, -3), App.Rotation())
sketch20.addGeometry(Part.Circle(V(-74.3, 15.1, 0), V(0, 0, 1), 1.5), False)
sketch20.addGeometry(Part.Circle(V(-33.2, 15.1, 0), V(0, 0, 1), 1.5), False)
sketch20.addGeometry(Part.Circle(V(33.2, 15.1, 0), V(0, 0, 1), 1.5), False)
sketch20.addGeometry(Part.Circle(V(74.3, 15.1, 0), V(0, 0, 1), 1.5), False)
sketch20.addConstraint(Sketcher.Constraint("Equal", 0, 1))
sketch20.addConstraint(Sketcher.Constraint("Equal", 1, 2))
sketch20.addConstraint(Sketcher.Constraint("Equal", 2, 3))
sketch20.addConstraint(Sketcher.Constraint("Symmetric", 1, 3, 2, 3, -2))
sketch20.addConstraint(Sketcher.Constraint("Symmetric", 0, 3, 3, 3, -2))
sketch20.addConstraint(Sketcher.Constraint("Horizontal", 0, 3, 1, 3))
sketch20.addConstraint(Sketcher.Constraint("Diameter", 0, Q("3 mm")))
sketch20.addConstraint(Sketcher.Constraint("DistanceY", -1, 1, 0, 3, Q("15.126608 mm")))
sketch20.addConstraint(Sketcher.Constraint("DistanceX", 0, 3, 1, 3, Q("41.058011 mm")))
sketch20.addConstraint(Sketcher.Constraint("DistanceX", 1, 3, 2, 3, Q("66.49995 mm")))
pocket15 = body.newObject("PartDesign::Pocket", "Pocket014")
pocket15.Profile = sketch20
pocket15.Length = 5
pocket15.Reversed = True

# Sketch on XZ plane
sketch21 = body.newObject("Sketcher::SketchObject", "Sketch020")
sketch21.AttachmentSupport = (doc.getObject("XZ_Plane"), [""])
sketch21.MapMode = "FlatFace"
sketch21.AttachmentOffset = App.Placement(V(0, 0, -3), App.Rotation())
sketch21.addGeometry(Part.Circle(V(-65.3, 47.9, 0), V(0, 0, 1), 1.5), False)
sketch21.addGeometry(Part.Circle(V(65.3, 47.9, 0), V(0, 0, 1), 1.5), False)
sketch21.addGeometry(Part.Circle(V(47, 121.4, 0), V(0, 0, 1), 1.5), False)
sketch21.addGeometry(Part.Circle(V(-47, 121.4, 0), V(0, 0, 1), 1.5), False)
sketch21.addConstraint(Sketcher.Constraint("Equal", 0, 1))
sketch21.addConstraint(Sketcher.Constraint("Equal", 1, 2))
sketch21.addConstraint(Sketcher.Constraint("Equal", 2, 3))
sketch21.addConstraint(Sketcher.Constraint("Symmetric", 0, 3, 1, 3, -2))
sketch21.addConstraint(Sketcher.Constraint("Symmetric", 2, 3, 3, 3, -2))
sketch21.addConstraint(Sketcher.Constraint("Diameter", 0, Q("3 mm")))
sketch21.addConstraint(Sketcher.Constraint("DistanceY", -1, 1, 2, 3, Q("121.38691 mm")))
sketch21.addConstraint(Sketcher.Constraint("DistanceX", 0, 3, 1, 3, Q("130.68401 mm")))
sketch21.addConstraint(Sketcher.Constraint("DistanceX", 2, 3, 1, 3, Q("18.355551 mm")))
sketch21.addConstraint(Sketcher.Constraint("DistanceY", -1, 1, 0, 3, Q("47.889666 mm")))
pocket16 = body.newObject("PartDesign::Pocket", "Pocket015")
pocket16.Profile = sketch21
pocket16.Length = 10
pocket16.Reversed = True

# Sketch on XZ plane
sketch22 = body.newObject("Sketcher::SketchObject", "Sketch021")
sketch22.AttachmentSupport = (doc.getObject("XZ_Plane"), [""])
sketch22.MapMode = "FlatFace"
sketch22.AttachmentOffset = App.Placement(V(0, 0, -3), App.Rotation())
sketch22.addGeometry(Part.Circle(V(-40.8, 36.3, 0), V(0, 0, 1), 1.5), False)
sketch22.addGeometry(Part.Circle(V(40.8, 36.3, 0), V(0, 0, 1), 1.5), False)
sketch22.addGeometry(Part.Circle(V(40.8, 129.8, 0), V(0, 0, 1), 1.5), False)
sketch22.addGeometry(Part.Circle(V(-40.8, 129.8, 0), V(0, 0, 1), 1.5), False)
sketch22.addConstraint(Sketcher.Constraint("Equal", 0, 1))
sketch22.addConstraint(Sketcher.Constraint("Equal", 1, 2))
sketch22.addConstraint(Sketcher.Constraint("Equal", 2, 3))
sketch22.addConstraint(Sketcher.Constraint("Symmetric", 0, 3, 1, 3, -2))
sketch22.addConstraint(Sketcher.Constraint("Symmetric", 2, 3, 3, 3, -2))
sketch22.addConstraint(Sketcher.Constraint("Vertical", 1, 3, 2, 3))
sketch22.addConstraint(Sketcher.Constraint("Diameter", 0, Q("3 mm")))
sketch22.addConstraint(Sketcher.Constraint("DistanceX", 0, 3, 1, 3, Q("81.5 mm")))
sketch22.addConstraint(Sketcher.Constraint("DistanceY", 1, 3, 2, 3, Q("93.5 mm")))
sketch22.addConstraint(Sketcher.Constraint("DistanceY", -1, 1, 0, 3, Q("36.322032 mm")))
pocket17 = body.newObject("PartDesign::Pocket", "Pocket016")
pocket17.Profile = sketch22
pocket17.Length = 3
pocket17.Reversed = True

# Sketch on XZ plane
sketch23 = body.newObject("Sketcher::SketchObject", "Sketch022")
sketch23.AttachmentSupport = (doc.getObject("XZ_Plane"), [""])
sketch23.MapMode = "FlatFace"
sketch23.AttachmentOffset = App.Placement(V(0, 0, -3), App.Rotation())
sketch23.addGeometry(Part.Circle(V(-58, 103.3, 0), V(0, 0, 1), 1.5), False)
sketch23.addGeometry(Part.Circle(V(58, 103.3, 0), V(0, 0, 1), 1.5), False)
sketch23.addConstraint(Sketcher.Constraint("Equal", 0, 1))
sketch23.addConstraint(Sketcher.Constraint("Symmetric", 0, 3, 1, 3, -2))
sketch23.addConstraint(Sketcher.Constraint("Diameter", 0, Q("3 mm")))
sketch23.addConstraint(Sketcher.Constraint("DistanceY", -1, 1, 0, 3, Q("103.347881 mm")))
sketch23.addConstraint(Sketcher.Constraint("DistanceX", 0, 3, 1, 3, Q("116.067312 mm")))
pocket18 = body.newObject("PartDesign::Pocket", "Pocket017")
pocket18.Profile = sketch23
pocket18.Length = 3
pocket18.Reversed = True
doc.recompute()

fillet = body.newObject("PartDesign::Fillet", "Fillet")
fillet.Base = (pocket18, edges_at(pocket18, [(100, 1.5, 136.774), (-100, 1.5, 136.774)]))
fillet.Radius = 10

doc.recompute()
